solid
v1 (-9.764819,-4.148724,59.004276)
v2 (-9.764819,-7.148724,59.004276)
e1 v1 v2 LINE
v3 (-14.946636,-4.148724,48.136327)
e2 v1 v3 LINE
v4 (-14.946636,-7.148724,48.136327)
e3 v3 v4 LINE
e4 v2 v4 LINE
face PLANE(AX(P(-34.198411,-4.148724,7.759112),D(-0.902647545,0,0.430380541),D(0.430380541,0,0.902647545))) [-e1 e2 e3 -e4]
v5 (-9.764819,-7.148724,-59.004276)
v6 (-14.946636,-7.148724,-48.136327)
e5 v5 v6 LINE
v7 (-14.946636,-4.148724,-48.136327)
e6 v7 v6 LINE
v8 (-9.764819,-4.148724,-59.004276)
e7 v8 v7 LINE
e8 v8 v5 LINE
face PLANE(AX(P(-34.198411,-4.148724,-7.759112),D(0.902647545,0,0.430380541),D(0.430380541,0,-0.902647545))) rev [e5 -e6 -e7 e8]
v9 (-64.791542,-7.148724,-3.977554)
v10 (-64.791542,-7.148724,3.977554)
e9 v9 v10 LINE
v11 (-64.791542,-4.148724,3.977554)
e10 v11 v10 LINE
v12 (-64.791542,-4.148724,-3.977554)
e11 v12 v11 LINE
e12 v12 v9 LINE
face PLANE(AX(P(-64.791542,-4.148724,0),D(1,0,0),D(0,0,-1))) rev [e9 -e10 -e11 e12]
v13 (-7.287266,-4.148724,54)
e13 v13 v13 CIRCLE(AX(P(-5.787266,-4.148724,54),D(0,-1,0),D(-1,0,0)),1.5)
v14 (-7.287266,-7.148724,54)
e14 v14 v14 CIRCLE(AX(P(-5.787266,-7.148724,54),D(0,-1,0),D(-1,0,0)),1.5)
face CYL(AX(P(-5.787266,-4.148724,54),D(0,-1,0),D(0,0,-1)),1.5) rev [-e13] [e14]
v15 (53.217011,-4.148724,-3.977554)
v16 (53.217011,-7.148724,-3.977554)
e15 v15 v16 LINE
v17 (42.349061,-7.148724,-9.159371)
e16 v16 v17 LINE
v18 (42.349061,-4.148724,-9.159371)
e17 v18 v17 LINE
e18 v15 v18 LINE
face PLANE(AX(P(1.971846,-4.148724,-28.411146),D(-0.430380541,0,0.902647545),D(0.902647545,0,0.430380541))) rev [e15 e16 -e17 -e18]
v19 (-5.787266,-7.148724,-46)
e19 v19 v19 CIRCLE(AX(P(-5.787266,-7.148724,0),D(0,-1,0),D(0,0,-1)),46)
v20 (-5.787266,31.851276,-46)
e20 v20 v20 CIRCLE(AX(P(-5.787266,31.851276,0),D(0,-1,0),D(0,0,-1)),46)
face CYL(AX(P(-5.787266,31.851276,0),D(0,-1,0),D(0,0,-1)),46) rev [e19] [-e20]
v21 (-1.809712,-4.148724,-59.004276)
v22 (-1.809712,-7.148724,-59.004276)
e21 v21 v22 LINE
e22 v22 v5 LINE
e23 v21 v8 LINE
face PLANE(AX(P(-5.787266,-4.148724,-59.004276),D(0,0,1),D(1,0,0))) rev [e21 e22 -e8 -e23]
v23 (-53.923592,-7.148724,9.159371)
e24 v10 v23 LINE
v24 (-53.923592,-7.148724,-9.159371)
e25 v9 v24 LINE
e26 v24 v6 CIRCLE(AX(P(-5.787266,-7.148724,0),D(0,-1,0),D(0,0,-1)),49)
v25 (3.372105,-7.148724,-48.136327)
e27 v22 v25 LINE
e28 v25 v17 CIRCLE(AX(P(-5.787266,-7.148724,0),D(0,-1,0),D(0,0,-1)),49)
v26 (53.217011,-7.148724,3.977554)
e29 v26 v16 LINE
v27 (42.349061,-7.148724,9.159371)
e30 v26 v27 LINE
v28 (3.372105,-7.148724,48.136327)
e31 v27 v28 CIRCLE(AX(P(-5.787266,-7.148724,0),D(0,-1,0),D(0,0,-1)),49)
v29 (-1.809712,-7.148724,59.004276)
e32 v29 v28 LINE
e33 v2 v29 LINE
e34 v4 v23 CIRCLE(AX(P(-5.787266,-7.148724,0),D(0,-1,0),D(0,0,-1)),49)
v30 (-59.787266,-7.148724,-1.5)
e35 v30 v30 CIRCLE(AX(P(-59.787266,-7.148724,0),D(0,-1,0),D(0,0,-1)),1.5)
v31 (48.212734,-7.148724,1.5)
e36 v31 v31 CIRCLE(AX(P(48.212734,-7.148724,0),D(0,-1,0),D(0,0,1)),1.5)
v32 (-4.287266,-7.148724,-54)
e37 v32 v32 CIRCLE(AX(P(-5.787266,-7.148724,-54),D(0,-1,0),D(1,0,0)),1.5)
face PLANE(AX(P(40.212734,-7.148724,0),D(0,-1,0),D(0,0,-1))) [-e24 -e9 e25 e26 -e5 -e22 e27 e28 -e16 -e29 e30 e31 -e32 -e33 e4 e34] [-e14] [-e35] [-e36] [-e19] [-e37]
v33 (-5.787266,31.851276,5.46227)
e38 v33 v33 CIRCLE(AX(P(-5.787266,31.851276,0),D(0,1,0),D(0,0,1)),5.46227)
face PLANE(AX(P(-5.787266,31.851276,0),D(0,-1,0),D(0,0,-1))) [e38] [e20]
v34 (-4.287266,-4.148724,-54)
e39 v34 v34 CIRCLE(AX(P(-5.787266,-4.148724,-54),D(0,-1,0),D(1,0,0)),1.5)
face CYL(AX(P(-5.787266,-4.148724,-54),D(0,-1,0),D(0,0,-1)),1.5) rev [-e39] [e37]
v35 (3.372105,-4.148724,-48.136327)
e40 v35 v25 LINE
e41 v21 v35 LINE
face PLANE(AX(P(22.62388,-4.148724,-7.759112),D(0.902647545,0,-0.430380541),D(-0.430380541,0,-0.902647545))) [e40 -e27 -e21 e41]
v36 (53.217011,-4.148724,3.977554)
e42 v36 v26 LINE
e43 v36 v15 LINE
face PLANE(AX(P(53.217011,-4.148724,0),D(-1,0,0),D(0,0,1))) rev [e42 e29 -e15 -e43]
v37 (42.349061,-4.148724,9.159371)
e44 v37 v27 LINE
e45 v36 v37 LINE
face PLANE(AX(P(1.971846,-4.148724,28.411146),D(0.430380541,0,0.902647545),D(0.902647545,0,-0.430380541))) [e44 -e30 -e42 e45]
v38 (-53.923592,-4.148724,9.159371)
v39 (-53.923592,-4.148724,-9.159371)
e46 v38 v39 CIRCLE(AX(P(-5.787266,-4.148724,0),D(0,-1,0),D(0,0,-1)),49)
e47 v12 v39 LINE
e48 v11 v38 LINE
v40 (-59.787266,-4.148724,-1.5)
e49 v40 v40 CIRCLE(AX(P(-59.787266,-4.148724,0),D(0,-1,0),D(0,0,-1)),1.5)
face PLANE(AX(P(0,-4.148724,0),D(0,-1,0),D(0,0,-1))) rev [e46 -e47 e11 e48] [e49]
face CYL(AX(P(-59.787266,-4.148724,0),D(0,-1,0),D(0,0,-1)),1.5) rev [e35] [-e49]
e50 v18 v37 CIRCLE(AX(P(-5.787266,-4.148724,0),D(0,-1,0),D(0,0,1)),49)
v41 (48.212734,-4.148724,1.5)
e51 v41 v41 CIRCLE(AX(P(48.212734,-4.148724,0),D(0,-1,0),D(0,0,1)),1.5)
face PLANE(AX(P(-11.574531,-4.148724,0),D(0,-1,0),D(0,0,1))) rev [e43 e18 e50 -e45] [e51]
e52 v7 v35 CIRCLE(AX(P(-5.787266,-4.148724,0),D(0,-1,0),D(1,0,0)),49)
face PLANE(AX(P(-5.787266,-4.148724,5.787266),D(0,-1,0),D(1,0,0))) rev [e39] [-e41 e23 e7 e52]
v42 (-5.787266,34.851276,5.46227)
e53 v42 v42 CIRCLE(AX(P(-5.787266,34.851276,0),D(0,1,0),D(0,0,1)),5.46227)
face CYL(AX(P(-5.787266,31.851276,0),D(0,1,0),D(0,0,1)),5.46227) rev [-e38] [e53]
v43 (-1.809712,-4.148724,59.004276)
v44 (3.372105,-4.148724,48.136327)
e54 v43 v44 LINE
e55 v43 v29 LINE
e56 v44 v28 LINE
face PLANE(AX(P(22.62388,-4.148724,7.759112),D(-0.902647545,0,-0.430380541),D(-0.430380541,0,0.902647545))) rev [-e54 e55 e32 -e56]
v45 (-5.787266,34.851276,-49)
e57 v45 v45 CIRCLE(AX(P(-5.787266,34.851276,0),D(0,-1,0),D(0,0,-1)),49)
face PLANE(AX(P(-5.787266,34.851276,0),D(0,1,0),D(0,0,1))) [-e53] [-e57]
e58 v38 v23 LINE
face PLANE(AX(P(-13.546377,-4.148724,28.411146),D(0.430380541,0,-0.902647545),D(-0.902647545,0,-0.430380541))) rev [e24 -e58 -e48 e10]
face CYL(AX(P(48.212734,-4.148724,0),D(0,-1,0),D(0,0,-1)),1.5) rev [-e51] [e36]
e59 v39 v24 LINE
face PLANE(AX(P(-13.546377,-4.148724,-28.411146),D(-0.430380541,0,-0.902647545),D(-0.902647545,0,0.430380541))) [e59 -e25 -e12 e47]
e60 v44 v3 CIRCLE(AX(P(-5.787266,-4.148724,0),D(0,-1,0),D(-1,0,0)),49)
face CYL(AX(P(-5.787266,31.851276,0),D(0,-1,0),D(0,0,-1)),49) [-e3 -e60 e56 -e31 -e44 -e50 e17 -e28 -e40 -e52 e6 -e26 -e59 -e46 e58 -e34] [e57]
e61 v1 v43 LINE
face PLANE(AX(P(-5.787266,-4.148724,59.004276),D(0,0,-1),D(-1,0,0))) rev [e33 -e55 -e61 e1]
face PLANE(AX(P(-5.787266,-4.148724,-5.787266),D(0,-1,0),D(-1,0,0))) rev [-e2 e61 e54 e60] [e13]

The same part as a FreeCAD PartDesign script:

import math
import FreeCAD as App
import Part
import Sketcher

V = App.Vector


def add_polygon(sketch, points):
    """Adds a closed chain of lines whose ends are joined by coincident constraints."""
    first, n = sketch.GeometryCount, len(points)
    for a, b in zip(points, points[1:] + points[:1]):
        sketch.addGeometry(Part.LineSegment(App.Vector(*a, 0), App.Vector(*b, 0)), False)
    for i in range(n):
        sketch.addConstraint(Sketcher.Constraint("Coincident", first + i, 2, first + (i + 1) % n, 1))

doc = App.newDocument("Part")
body = doc.addObject("PartDesign::Body", "Body")

sketch1 = body.newObject("Sketcher::SketchObject", "Sketch")
sketch1.AttachmentSupport = (doc.getObject("XY_Plane"), [""])
sketch1.MapMode = "FlatFace"
add_polygon(sketch1, [(-5.787266, 31.851276), (40.212734, 31.851276), (40.212734, -7.148724), (43.212734, -7.148724), (43.212734, 34.851276), (-5.787266, 34.851276)])
sketch1.addGeometry(Part.LineSegment(V(-5.787266, -7.148724, 0), V(-5.787266, 34.851276, 0)), True)
sketch1.addConstraint([
    Sketcher.Constraint("Horizontal", 0),
    Sketcher.Constraint("Vertical", 1),
    Sketcher.Constraint("Horizontal", 2),
    Sketcher.Constraint("Vertical", 3),
    Sketcher.Constraint("Horizontal", 4),
    Sketcher.Constraint("Vertical", 5),
    Sketcher.Constraint("Vertical", 6),
    Sketcher.Constraint("Coincident", 6, 2, 4, 2),
    Sketcher.Constraint("Horizontal", 2, 2, 6, 1),
    Sketcher.Constraint("Equal", 2, 5),
    Sketcher.Constraint("DistanceX", 0, 1, 0, 2, 46.0),
    Sketcher.Constraint("DistanceX", 2, 1, 2, 2, 3.0),
    Sketcher.Constraint("DistanceY", 1, 2, 1, 1, 39.0),
    Sketcher.Constraint("DistanceX", -1, 1, 0, 2, 40.212734),
    Sketcher.Constraint("DistanceY", -1, 1, 0, 2, 31.851276),
])
revolution = body.newObject("PartDesign::Revolution", "Revolution")
revolution.Profile = sketch1
revolution.ReferenceAxis = (sketch1, ["Axis0"])
revolution.Angle = 360

sketch2 = body.newObject("Sketcher::SketchObject", "Sketch001")
sketch2.AttachmentSupport = (doc.getObject("XZ_Plane"), [""])
sketch2.MapMode = "FlatFace"
sketch2.AttachmentOffset = App.Placement(V(0, 0, 7.148724), App.Rotation())
sketch2.addGeometry([
    Part.LineSegment(V(-64.791542, 3.977554, 0), V(-64.791542, -3.977554, 0)),
    Part.LineSegment(V(-64.791542, -3.977554, 0), V(-53.923592, -9.159371, 0)),
    Part.ArcOfCircle(Part.Circle(V(-5.787266, 0, 0), V(0, 0, 1), 49), math.radians(180), math.radians(190.773439)),
    Part.ArcOfCircle(Part.Circle(V(-5.787266, 0, 0), V(0, 0, 1), 49), math.radians(169.226561), math.radians(180)),
    Part.LineSegment(V(-53.923592, 9.159371, 0), V(-64.791542, 3.977554, 0)),
], False)
sketch2.addConstraint([
    Sketcher.Constraint("Coincident", 0, 2, 1, 1),
    Sketcher.Constraint("Coincident", 1, 2, 2, 2),
    Sketcher.Constraint("Tangent", 2, 1, 3, 2),
    Sketcher.Constraint("Coincident", 3, 1, 4, 1),
    Sketcher.Constraint("Coincident", 4, 2, 0, 1),
    Sketcher.Constraint("Vertical", 0),
    Sketcher.Constraint("Equal", 2, 3),
    Sketcher.Constraint("Symmetric", 1, 2, 3, 1, -1),
    Sketcher.Constraint("PointOnObject", 2, 1, -1),
    Sketcher.Constraint("Equal", 1, 4),
    Sketcher.Constraint("Radius", 2, 49.0),
    Sketcher.Constraint("Distance", 1, 12.040081),
    Sketcher.Constraint("DistanceY", 0, 2, 0, 1, 7.955107),
    Sketcher.Constraint("DistanceY", 1, 2, -1, 1, 9.159371),
    Sketcher.Constraint("DistanceX", 2, 3, -1, 1, 5.787266),
])
pad1 = body.newObject("PartDesign::Pad", "Pad")
pad1.Profile = sketch2
pad1.Length = 3
pad1.Reversed = True

sketch3 = body.newObject("Sketcher::SketchObject", "Sketch002")
sketch3.AttachmentSupport = (doc.getObject("XZ_Plane"), [""])
sketch3.MapMode = "FlatFace"
sketch3.AttachmentOffset = App.Placement(V(0, 0, 7.148724), App.Rotation())
sketch3.addGeometry(Part.Circle(V(-59.787266, 0, 0), V(0, 0, 1), 1.5), False)
sketch3.addConstraint([
    Sketcher.Constraint("PointOnObject", 0, 3, -1),
    Sketcher.Constraint("Diameter", 0, 3.0),
    Sketcher.Constraint("DistanceX", 0, 3, -1, 1, 59.787266),
])
pocket1 = body.newObject("PartDesign::Pocket", "Pocket")
pocket1.Profile = sketch3
pocket1.Length = 3
doc.recompute()

datumline = body.newObject("PartDesign::Line", "DatumLine")
datumline.Placement = App.Placement(V(-5.787266, 0, 0), App.Rotation(V(0, 0, 1), V(0, 1, 0)))
polarpattern = body.newObject("PartDesign::PolarPattern", "PolarPattern")
polarpattern.Originals = [pad1]
polarpattern.Axis = (datumline, [""])
polarpattern.Angle = 360
polarpattern.Occurrences = 4
body.Tip = polarpattern
doc.recompute()

datumline2 = body.newObject("PartDesign::Line", "DatumLine001")
datumline2.Placement = App.Placement(V(-5.787266, 0, 0), App.Rotation(V(0, 0, 1), V(0, 1, 0)))
polarpattern2 = body.newObject("PartDesign::PolarPattern", "PolarPattern001")
polarpattern2.Originals = [pocket1]
polarpattern2.Axis = (datumline2, [""])
polarpattern2.Angle = 360
polarpattern2.Occurrences = 4
body.Tip = polarpattern2

sketch4 = body.newObject("Sketcher::SketchObject", "Sketch003")
sketch4.AttachmentSupport = (doc.getObject("XZ_Plane"), [""])
sketch4.MapMode = "FlatFace"
sketch4.AttachmentOffset = App.Placement(V(0, 0, -34.851276), App.Rotation())
sketch4.addGeometry(Part.Circle(V(-5.787266, 0, 0), V(0, 0, 1), 5.46227), False)
sketch4.addConstraint([
    Sketcher.Constraint("PointOnObject", 0, 3, -1),
    Sketcher.Constraint("Diameter", 0, 10.92454),
    Sketcher.Constraint("DistanceX", 0, 3, -1, 1, 5.787266),
])
pocket2 = body.newObject("PartDesign::Pocket", "Pocket001")
pocket2.Profile = sketch4
pocket2.Length = 3
pocket2.Reversed = True

doc.recompute()
